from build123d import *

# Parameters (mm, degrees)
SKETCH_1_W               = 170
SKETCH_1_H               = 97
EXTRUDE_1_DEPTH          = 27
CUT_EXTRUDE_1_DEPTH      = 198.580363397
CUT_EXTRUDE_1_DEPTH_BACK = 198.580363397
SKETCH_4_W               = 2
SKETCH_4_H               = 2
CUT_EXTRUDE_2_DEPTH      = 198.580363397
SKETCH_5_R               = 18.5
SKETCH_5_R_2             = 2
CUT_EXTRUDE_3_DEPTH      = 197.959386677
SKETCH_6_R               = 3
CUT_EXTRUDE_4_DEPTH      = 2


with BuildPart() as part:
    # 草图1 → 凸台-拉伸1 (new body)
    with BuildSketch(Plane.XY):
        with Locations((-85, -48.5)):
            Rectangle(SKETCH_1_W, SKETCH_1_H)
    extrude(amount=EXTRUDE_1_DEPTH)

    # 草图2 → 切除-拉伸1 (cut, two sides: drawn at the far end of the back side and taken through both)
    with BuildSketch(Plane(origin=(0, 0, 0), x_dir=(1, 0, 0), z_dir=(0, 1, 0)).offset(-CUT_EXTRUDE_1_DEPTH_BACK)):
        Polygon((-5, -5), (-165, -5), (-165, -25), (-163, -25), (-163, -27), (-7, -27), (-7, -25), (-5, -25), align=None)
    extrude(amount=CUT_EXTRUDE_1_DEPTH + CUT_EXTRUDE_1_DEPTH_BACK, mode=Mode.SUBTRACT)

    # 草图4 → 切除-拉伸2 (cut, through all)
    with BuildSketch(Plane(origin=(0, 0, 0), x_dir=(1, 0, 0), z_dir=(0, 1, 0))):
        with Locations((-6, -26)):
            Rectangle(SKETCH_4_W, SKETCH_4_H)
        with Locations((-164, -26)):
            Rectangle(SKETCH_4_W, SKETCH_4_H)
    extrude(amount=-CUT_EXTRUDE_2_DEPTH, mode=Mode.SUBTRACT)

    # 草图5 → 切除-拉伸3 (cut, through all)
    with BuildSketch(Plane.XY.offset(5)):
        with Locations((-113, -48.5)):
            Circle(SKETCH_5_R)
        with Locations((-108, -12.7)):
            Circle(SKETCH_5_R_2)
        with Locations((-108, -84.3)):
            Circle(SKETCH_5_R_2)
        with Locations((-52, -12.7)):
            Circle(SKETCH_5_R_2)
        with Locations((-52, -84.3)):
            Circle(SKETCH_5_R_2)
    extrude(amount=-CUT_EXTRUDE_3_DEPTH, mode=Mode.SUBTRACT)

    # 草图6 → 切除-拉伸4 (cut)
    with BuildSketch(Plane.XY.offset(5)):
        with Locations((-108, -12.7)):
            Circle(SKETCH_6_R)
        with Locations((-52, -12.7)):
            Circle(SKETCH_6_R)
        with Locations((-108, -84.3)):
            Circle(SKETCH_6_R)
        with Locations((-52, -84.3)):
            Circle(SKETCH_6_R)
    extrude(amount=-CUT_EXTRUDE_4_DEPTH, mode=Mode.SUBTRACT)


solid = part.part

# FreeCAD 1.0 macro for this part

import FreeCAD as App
import Part
import Sketcher
Q = App.Units.Quantity

doc = App.newDocument("Part")
body = doc.addObject("PartDesign::Body", "Body")

# Sketch on XY plane
sketch1 = body.newObject("Sketcher::SketchObject", "Sketch")
sketch1.AttachmentSupport = (doc.getObject("XY_Plane"), [""])
sketch1.MapMode = "FlatFace"
sketch1.addGeometry(Part.LineSegment(App.Vector(-170, 0, 0), App.Vector(-170, -97, 0)), False)
sketch1.addGeometry(Part.LineSegment(App.Vector(-170, -97, 0), App.Vector(0, -97, 0)), False)
sketch1.addGeometry(Part.LineSegment(App.Vector(0, -97, 0), App.Vector(0, 0, 0)), False)
sketch1.addGeometry(Part.LineSegment(App.Vector(0, 0, 0), App.Vector(-170, 0, 0)), False)
sketch1.addConstraint(Sketcher.Constraint("Coincident", 0, 2, 1, 1))
sketch1.addConstraint(Sketcher.Constraint("Coincident", 1, 2, 2, 1))
sketch1.addConstraint(Sketcher.Constraint("Coincident", 2, 2, 3, 1))
sketch1.addConstraint(Sketcher.Constraint("Coincident", 3, 2, 0, 1))
sketch1.addConstraint(Sketcher.Constraint("Vertical", 0))
sketch1.addConstraint(Sketcher.Constraint("Horizontal", 1))
sketch1.addConstraint(Sketcher.Constraint("Vertical", 2))
sketch1.addConstraint(Sketcher.Constraint("Horizontal", 3))
sketch1.addConstraint(Sketcher.Constraint("Coincident", 2, 2, -1, 1))
sketch1.addConstraint(Sketcher.Constraint("DistanceX", 1, 1, 1, 2, Q("170 mm")))
sketch1.addConstraint(Sketcher.Constraint("DistanceY", 0, 2, 0, 1, Q("97 mm")))
pad1 = body.newObject("PartDesign::Pad", "Pad")
pad1.Profile = sketch1
pad1.Length = 27

# Sketch on XZ plane
sketch2 = body.newObject("Sketcher::SketchObject", "Sketch001")
sketch2.AttachmentSupport = (doc.getObject("XZ_Plane"), [""])
sketch2.MapMode = "FlatFace"
sketch2.addGeometry(Part.LineSegment(App.Vector(-5, 5, 0), App.Vector(-165, 5, 0)), False)
sketch2.addGeometry(Part.LineSegment(App.Vector(-165, 5, 0), App.Vector(-165, 25, 0)), False)
sketch2.addGeometry(Part.LineSegment(App.Vector(-165, 25, 0), App.Vector(-163, 25, 0)), False)
sketch2.addGeometry(Part.LineSegment(App.Vector(-163, 25, 0), App.Vector(-163, 27, 0)), False)
sketch2.addGeometry(Part.LineSegment(App.Vector(-163, 27, 0), App.Vector(-7, 27, 0)), False)
sketch2.addGeometry(Part.LineSegment(App.Vector(-7, 27, 0), App.Vector(-7, 25, 0)), False)
sketch2.addGeometry(Part.LineSegment(App.Vector(-7, 25, 0), App.Vector(-5, 25, 0)), False)
sketch2.addGeometry(Part.LineSegment(App.Vector(-5, 25, 0), App.Vector(-5, 5, 0)), False)
sketch2.addConstraint(Sketcher.Constraint("Coincident", 0, 2, 1, 1))
sketch2.addConstraint(Sketcher.Constraint("Coincident", 1, 2, 2, 1))
sketch2.addConstraint(Sketcher.Constraint("Coincident", 2, 2, 3, 1))
sketch2.addConstraint(Sketcher.Constraint("Coincident", 3, 2, 4, 1))
sketch2.addConstraint(Sketcher.Constraint("Coincident", 4, 2, 5, 1))
sketch2.addConstraint(Sketcher.Constraint("Coincident", 5, 2, 6, 1))
sketch2.addConstraint(Sketcher.Constraint("Coincident", 6, 2, 7, 1))
sketch2.addConstraint(Sketcher.Constraint("Coincident", 7, 2, 0, 1))
sketch2.addConstraint(Sketcher.Constraint("Horizontal", 0))
sketch2.addConstraint(Sketcher.Constraint("Vertical", 1))
sketch2.addConstraint(Sketcher.Constraint("Horizontal", 2))
sketch2.addConstraint(Sketcher.Constraint("Vertical", 3))
sketch2.addConstraint(Sketcher.Constraint("Horizontal", 4))
sketch2.addConstraint(Sketcher.Constraint("Vertical", 5))
sketch2.addConstraint(Sketcher.Constraint("Horizontal", 6))
sketch2.addConstraint(Sketcher.Constraint("Vertical", 7))
sketch2.addConstraint(Sketcher.Constraint("Horizontal", 2, 2, 5, 2))
sketch2.addConstraint(Sketcher.Constraint("Equal", 2, 6))
sketch2.addConstraint(Sketcher.Constraint("Equal", 6, 3))
sketch2.addConstraint(Sketcher.Constraint("DistanceX", 0, 2, 0, 1, Q("160 mm")))
sketch2.addConstraint(Sketcher.Constraint("DistanceX", 2, 1, 2, 2, Q("2 mm")))
sketch2.addConstraint(Sketcher.Constraint("DistanceY", 1, 1, 1, 2, Q("20 mm")))
sketch2.addConstraint(Sketcher.Constraint("DistanceX", 0, 2, -1, 1, Q("165 mm")))
sketch2.addConstraint(Sketcher.Constraint("DistanceY", -1, 1, 0, 2, Q("5 mm")))
pocket1 = body.newObject("PartDesign::Pocket", "Pocket")
pocket1.Profile = sketch2
pocket1.Type = "ThroughAll"
pocket1.Midplane = True

# Sketch on XZ plane
sketch3 = body.newObject("Sketcher::SketchObject", "Sketch002")
sketch3.AttachmentSupport = (doc.getObject("XZ_Plane"), [""])
sketch3.MapMode = "FlatFace"
sketch3.addGeometry(Part.LineSegment(App.Vector(-7, 25, 0), App.Vector(-7, 27, 0)), False)
sketch3.addGeometry(Part.LineSegment(App.Vector(-7, 27, 0), App.Vector(-5, 27, 0)), False)
sketch3.addGeometry(Part.LineSegment(App.Vector(-5, 27, 0), App.Vector(-5, 25, 0)), False)
sketch3.addGeometry(Part.LineSegment(App.Vector(-5, 25, 0), App.Vector(-7, 25, 0)), False)
sketch3.addGeometry(Part.LineSegment(App.Vector(-165, 25, 0), App.Vector(-165, 27, 0)), False)
sketch3.addGeometry(Part.LineSegment(App.Vector(-165, 27, 0), App.Vector(-163, 27, 0)), False)
sketch3.addGeometry(Part.LineSegment(App.Vector(-163, 27, 0), App.Vector(-163, 25, 0)), False)
sketch3.addGeometry(Part.LineSegment(App.Vector(-163, 25, 0), App.Vector(-165, 25, 0)), False)
sketch3.addConstraint(Sketcher.Constraint("Coincident", 0, 2, 1, 1))
sketch3.addConstraint(Sketcher.Constraint("Coincident", 1, 2, 2, 1))
sketch3.addConstraint(Sketcher.Constraint("Coincident", 2, 2, 3, 1))
sketch3.addConstraint(Sketcher.Constraint("Coincident", 3, 2, 0, 1))
sketch3.addConstraint(Sketcher.Constraint("Coincident", 4, 2, 5, 1))
sketch3.addConstraint(Sketcher.Constraint("Coincident", 5, 2, 6, 1))
sketch3.addConstraint(Sketcher.Constraint("Coincident", 6, 2, 7, 1))
sketch3.addConstraint(Sketcher.Constraint("Coincident", 7, 2, 4, 1))
sketch3.addConstraint(Sketcher.Constraint("Vertical", 0))
sketch3.addConstraint(Sketcher.Constraint("Horizontal", 1))
sketch3.addConstraint(Sketcher.Constraint("Vertical", 2))
sketch3.addConstraint(Sketcher.Constraint("Horizontal", 3))
sketch3.addConstraint(Sketcher.Constraint("Vertical", 4))
sketch3.addConstraint(Sketcher.Constraint("Horizontal", 5))
sketch3.addConstraint(Sketcher.Constraint("Vertical", 6))
sketch3.addConstraint(Sketcher.Constraint("Horizontal", 7))
sketch3.addConstraint(Sketcher.Constraint("Horizontal", 1, 2, 4, 2))
sketch3.addConstraint(Sketcher.Constraint("Horizontal", 3, 2, 6, 2))
sketch3.addConstraint(Sketcher.Constraint("Equal", 3, 5))
sketch3.addConstraint(Sketcher.Constraint("Equal", 7, 0))
sketch3.addConstraint(Sketcher.Constraint("DistanceX", 1, 1, 1, 2, Q("2 mm")))
sketch3.addConstraint(Sketcher.Constraint("DistanceX", 0, 2, -1, 1, Q("7 mm")))
sketch3.addConstraint(Sketcher.Constraint("DistanceY", -1, 1, 0, 2, Q("27 mm")))
sketch3.addConstraint(Sketcher.Constraint("DistanceX", 4, 2, -1, 1, Q("165 mm")))
pocket2 = body.newObject("PartDesign::Pocket", "Pocket001")
pocket2.Profile = sketch3
pocket2.Type = "ThroughAll"
pocket2.Reversed = True

# Sketch on XY plane
sketch4 = body.newObject("Sketcher::SketchObject", "Sketch003")
sketch4.AttachmentSupport = (doc.getObject("XY_Plane"), [""])
sketch4.MapMode = "FlatFace"
sketch4.AttachmentOffset = App.Placement(App.Vector(0, 0, 5), App.Rotation())
sketch4.addGeometry(Part.Circle(App.Vector(-113, -48.5, 0), App.Vector(0, 0, 1), 18.5), False)
sketch4.addGeometry(Part.Circle(App.Vector(-108, -12.7, 0), App.Vector(0, 0, 1), 2), False)
sketch4.addGeometry(Part.Circle(App.Vector(-108, -84.3, 0), App.Vector(0, 0, 1), 2), False)
sketch4.addGeometry(Part.Circle(App.Vector(-52, -12.7, 0), App.Vector(0, 0, 1), 2), False)
sketch4.addGeometry(Part.Circle(App.Vector(-52, -84.3, 0), App.Vector(0, 0, 1), 2), False)
sketch4.addConstraint(Sketcher.Constraint("Equal", 1, 2))
sketch4.addConstraint(Sketcher.Constraint("Equal", 2, 3))
sketch4.addConstraint(Sketcher.Constraint("Equal", 3, 4))
sketch4.addConstraint(Sketcher.Constraint("Horizontal", 1, 3, 3, 3))
sketch4.addConstraint(Sketcher.Constraint("Horizontal", 2, 3, 4, 3))
sketch4.addConstraint(Sketcher.Constraint("Vertical", 1, 3, 2, 3))
sketch4.addConstraint(Sketcher.Constraint("Vertical", 3, 3, 4, 3))
sketch4.addConstraint(Sketcher.Constraint("Diameter", 0, Q("37 mm")))
sketch4.addConstraint(Sketcher.Constraint("Diameter", 1, Q("4 mm")))
sketch4.addConstraint(Sketcher.Constraint("DistanceX", 0, 3, -1, 1, Q("113 mm")))
sketch4.addConstraint(Sketcher.Constraint("DistanceX", 1, 3, -1, 1, Q("108 mm")))
sketch4.addConstraint(Sketcher.Constraint("DistanceX", 3, 3, -1, 1, Q("52 mm")))
sketch4.addConstraint(Sketcher.Constraint("DistanceY", 0, 3, -1, 1, Q("48.5 mm")))
sketch4.addConstraint(Sketcher.Constraint("DistanceY", 1, 3, -1, 1, Q("12.7 mm")))
sketch4.addConstraint(Sketcher.Constraint("DistanceY", 2, 3, -1, 1, Q("84.3 mm")))
pocket3 = body.newObject("PartDesign::Pocket", "Pocket002")
pocket3.Profile = sketch4
pocket3.Type = "ThroughAll"

# Sketch on XY plane
sketch5 = body.newObject("Sketcher::SketchObject", "Sketch004")
sketch5.AttachmentSupport = (doc.getObject("XY_Plane"), [""])
sketch5.MapMode = "FlatFace"
sketch5.AttachmentOffset = App.Placement(App.Vector(0, 0, 5), App.Rotation())
sketch5.addGeometry(Part.Circle(App.Vector(-108, -12.7, 0), App.Vector(0, 0, 1), 3), False)
sketch5.addGeometry(Part.Circle(App.Vector(-52, -12.7, 0), App.Vector(0, 0, 1), 3), False)
sketch5.addGeometry(Part.Circle(App.Vector(-108, -84.3, 0), App.Vector(0, 0, 1), 3), False)
sketch5.addGeometry(Part.Circle(App.Vector(-52, -84.3, 0), App.Vector(0, 0, 1), 3), False)
sketch5.addConstraint(Sketcher.Constraint("Equal", 0, 1))
sketch5.addConstraint(Sketcher.Constraint("Equal", 1, 2))
sketch5.addConstraint(Sketcher.Constraint("Equal", 2, 3))
sketch5.addConstraint(Sketcher.Constraint("Horizontal", 0, 3, 1, 3))
sketch5.addConstraint(Sketcher.Constraint("Horizontal", 2, 3, 3, 3))
sketch5.addConstraint(Sketcher.Constraint("Vertical", 0, 3, 2, 3))
sketch5.addConstraint(Sketcher.Constraint("Vertical", 1, 3, 3, 3))
sketch5.addConstraint(Sketcher.Constraint("Diameter", 0, Q("6 mm")))
sketch5.addConstraint(Sketcher.Constraint("DistanceX", 0, 3, -1, 1, Q("108 mm")))
sketch5.addConstraint(Sketcher.Constraint("DistanceX", 1, 3, -1, 1, Q("52 mm")))
sketch5.addConstraint(Sketcher.Constraint("DistanceY", 0, 3, -1, 1, Q("12.7 mm")))
sketch5.addConstraint(Sketcher.Constraint("DistanceY", 2, 3, -1, 1, Q("84.3 mm")))
pocket4 = body.newObject("PartDesign::Pocket", "Pocket003")
pocket4.Profile = sketch5
pocket4.Length = 2

doc.recompute()
